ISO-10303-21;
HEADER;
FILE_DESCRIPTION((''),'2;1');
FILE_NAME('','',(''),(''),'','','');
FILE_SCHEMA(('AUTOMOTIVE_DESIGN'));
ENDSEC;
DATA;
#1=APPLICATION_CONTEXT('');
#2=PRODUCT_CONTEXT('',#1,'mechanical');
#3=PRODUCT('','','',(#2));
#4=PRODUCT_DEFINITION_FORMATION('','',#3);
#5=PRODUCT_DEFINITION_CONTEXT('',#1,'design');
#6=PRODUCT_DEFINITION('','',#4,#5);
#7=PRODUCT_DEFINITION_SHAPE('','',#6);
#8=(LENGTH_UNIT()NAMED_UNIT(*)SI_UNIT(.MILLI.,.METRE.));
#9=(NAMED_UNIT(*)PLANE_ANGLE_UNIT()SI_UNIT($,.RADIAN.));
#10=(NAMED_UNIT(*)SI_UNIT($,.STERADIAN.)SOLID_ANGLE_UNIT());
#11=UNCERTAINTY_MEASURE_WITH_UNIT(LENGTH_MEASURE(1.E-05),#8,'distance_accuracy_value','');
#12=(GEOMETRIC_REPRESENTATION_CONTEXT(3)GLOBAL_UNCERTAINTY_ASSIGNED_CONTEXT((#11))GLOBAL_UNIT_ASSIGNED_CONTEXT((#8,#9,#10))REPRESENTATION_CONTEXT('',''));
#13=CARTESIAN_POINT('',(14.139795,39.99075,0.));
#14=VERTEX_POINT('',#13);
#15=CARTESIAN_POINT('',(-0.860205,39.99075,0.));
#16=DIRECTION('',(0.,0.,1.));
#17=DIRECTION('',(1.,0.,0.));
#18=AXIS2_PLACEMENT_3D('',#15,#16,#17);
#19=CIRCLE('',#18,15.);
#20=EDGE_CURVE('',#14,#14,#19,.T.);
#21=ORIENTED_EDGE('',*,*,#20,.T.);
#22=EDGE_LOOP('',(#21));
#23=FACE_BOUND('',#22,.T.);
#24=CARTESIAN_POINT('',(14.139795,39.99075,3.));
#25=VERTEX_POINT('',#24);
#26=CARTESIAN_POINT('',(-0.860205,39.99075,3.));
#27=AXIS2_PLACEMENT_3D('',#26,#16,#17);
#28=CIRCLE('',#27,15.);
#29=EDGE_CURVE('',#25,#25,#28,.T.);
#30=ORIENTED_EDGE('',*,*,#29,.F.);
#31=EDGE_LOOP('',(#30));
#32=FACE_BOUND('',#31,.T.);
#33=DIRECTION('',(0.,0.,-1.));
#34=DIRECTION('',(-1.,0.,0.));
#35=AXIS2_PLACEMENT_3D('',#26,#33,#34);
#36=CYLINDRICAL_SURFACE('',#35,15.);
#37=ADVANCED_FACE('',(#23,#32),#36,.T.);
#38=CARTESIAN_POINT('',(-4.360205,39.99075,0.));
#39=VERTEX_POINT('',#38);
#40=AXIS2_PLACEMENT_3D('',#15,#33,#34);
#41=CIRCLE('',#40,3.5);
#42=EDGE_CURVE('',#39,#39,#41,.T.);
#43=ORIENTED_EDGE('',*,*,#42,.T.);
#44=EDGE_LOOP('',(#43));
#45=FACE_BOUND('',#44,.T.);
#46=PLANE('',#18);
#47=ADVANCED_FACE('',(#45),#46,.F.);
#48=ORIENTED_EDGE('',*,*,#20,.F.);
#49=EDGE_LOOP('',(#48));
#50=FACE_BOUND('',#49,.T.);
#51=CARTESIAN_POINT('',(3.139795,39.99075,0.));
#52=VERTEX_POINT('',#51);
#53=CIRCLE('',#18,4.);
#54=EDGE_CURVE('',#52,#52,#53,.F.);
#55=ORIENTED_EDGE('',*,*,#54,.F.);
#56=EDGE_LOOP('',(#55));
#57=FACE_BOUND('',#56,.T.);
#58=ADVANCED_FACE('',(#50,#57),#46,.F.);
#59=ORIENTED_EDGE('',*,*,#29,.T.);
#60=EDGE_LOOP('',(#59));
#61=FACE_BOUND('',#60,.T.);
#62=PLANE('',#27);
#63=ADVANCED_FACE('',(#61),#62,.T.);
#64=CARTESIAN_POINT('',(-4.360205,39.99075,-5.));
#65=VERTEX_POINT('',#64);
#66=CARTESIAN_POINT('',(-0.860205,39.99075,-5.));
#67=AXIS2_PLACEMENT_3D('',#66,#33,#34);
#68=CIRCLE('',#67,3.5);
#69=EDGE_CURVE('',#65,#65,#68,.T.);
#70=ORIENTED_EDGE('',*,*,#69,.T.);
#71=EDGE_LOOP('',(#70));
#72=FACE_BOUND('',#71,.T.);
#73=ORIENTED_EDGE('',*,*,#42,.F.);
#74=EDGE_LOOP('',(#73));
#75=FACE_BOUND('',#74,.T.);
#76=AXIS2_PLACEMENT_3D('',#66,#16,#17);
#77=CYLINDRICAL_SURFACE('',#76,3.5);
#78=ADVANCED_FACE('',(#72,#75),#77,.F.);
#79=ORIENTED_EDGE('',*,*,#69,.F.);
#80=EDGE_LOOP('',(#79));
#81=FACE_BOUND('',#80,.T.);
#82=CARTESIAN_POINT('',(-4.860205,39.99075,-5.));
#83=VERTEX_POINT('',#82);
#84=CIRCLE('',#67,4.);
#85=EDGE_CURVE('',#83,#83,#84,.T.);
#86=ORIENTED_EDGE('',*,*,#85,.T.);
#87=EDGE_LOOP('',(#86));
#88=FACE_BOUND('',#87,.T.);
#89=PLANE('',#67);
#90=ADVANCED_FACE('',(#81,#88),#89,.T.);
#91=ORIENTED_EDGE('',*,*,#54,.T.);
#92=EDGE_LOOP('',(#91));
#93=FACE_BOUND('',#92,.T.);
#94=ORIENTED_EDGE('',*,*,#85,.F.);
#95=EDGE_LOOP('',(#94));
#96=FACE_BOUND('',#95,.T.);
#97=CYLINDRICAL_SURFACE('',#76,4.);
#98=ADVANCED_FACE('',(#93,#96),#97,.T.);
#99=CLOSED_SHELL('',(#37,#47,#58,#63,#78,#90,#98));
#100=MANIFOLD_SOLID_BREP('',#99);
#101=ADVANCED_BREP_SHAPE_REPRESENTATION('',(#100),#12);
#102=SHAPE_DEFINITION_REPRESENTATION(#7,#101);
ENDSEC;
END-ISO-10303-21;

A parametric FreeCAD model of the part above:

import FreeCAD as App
import Part
import Sketcher
Q = App.Units.Quantity

doc = App.newDocument("Part")
body = doc.addObject("PartDesign::Body", "Body")

# Sketch on XY plane
sketch1 = doc.addObject("Sketcher::SketchObject", "Sketch")
body.addObject(sketch1)
sketch1.AttachmentSupport = (doc.XY_Plane, [""])
sketch1.MapMode = "FlatFace"
sketch1.addGeometry(Part.Circle(App.Vector(-0.9, 40, 0), App.Vector(0, 0, 1), 15), False)
sketch1.addGeometry(Part.Circle(App.Vector(-0.9, 40, 0), App.Vector(0, 0, 1), 4), False)
sketch1.addConstraint(Sketcher.Constraint("Coincident", 1, 3, 0, 3))
sketch1.addConstraint(Sketcher.Constraint("Diameter", 0, Q("30 mm")))
sketch1.addConstraint(Sketcher.Constraint("Diameter", 1, Q("8 mm")))
sketch1.addConstraint(Sketcher.Constraint("DistanceY", -1, 1, 0, 3, Q("39.99075 mm")))
sketch1.addConstraint(Sketcher.Constraint("DistanceX", 0, 3, -1, 1, Q("0.860205 mm")))
pad1 = doc.addObject("PartDesign::Pad", "Pad")
body.addObject(pad1)
pad1.Profile = sketch1
pad1.Length = 3
body2 = doc.addObject("PartDesign::Body", "Body001")

# Sketch on XY plane
sketch2 = doc.addObject("Sketcher::SketchObject", "Sketch001")
body2.addObject(sketch2)
sketch2.AttachmentSupport = (doc.getObject("XY_Plane001"), [""])
sketch2.MapMode = "FlatFace"
sketch2.addGeometry(Part.Circle(App.Vector(-0.9, 40, 0), App.Vector(0, 0, 1), 4), False)
sketch2.addGeometry(Part.Circle(App.Vector(-0.9, 40, 0), App.Vector(0, 0, 1), 3.5), False)
sketch2.addConstraint(Sketcher.Constraint("Coincident", 1, 3, 0, 3))
sketch2.addConstraint(Sketcher.Constraint("Diameter", 0, Q("8 mm")))
sketch2.addConstraint(Sketcher.Constraint("Diameter", 1, Q("7 mm")))
sketch2.addConstraint(Sketcher.Constraint("DistanceY", -1, 1, 0, 3, Q("39.99075 mm")))
sketch2.addConstraint(Sketcher.Constraint("DistanceX", 0, 3, -1, 1, Q("0.860205 mm")))
pad2 = doc.addObject("PartDesign::Pad", "Pad001")
body2.addObject(pad2)
pad2.Profile = sketch2
pad2.Length = 5
pad2.Reversed = True
body.AllowCompound = True
doc.recompute()

boolean = doc.addObject("PartDesign::Boolean", "Boolean")
body.addObject(boolean)
boolean.Type = "Fuse"
boolean.addObjects([body2])

# Sketch on XY plane
sketch3 = doc.addObject("Sketcher::SketchObject", "Sketch002")
body.addObject(sketch3)
sketch3.AttachmentSupport = (doc.XY_Plane, [""])
sketch3.MapMode = "FlatFace"
sketch3.addGeometry(Part.Circle(App.Vector(-0.9, 40, 0), App.Vector(0, 0, 1), 4), False)
sketch3.addConstraint(Sketcher.Constraint("Diameter", 0, Q("8 mm")))
sketch3.addConstraint(Sketcher.Constraint("DistanceY", -1, 1, 0, 3, Q("39.99075 mm")))
sketch3.addConstraint(Sketcher.Constraint("DistanceX", 0, 3, -1, 1, Q("0.860205 mm")))
pad3 = doc.addObject("PartDesign::Pad", "Pad002")
body.addObject(pad3)
pad3.Profile = sketch3
pad3.Length = 3

doc.recompute()
